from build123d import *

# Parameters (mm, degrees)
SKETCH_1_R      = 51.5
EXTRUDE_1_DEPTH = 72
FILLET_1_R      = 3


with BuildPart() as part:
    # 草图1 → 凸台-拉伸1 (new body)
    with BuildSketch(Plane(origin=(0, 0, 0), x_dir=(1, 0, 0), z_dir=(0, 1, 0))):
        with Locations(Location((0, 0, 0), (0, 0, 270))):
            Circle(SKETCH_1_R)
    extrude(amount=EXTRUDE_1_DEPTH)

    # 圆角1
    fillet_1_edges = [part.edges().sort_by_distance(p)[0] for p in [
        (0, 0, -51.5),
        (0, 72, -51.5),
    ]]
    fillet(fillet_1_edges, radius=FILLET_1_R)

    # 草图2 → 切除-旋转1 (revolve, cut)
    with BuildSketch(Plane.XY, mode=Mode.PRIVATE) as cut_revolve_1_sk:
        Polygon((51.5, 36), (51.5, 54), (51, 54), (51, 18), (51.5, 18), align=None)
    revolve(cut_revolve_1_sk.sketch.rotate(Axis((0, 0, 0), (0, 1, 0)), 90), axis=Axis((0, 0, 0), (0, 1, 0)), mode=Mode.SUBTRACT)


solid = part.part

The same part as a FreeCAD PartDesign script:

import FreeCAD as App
import Part
import Sketcher
from FreeCAD import Vector
Q = App.Units.Quantity


def edges_at(feature, points):
    """Names of the edges that pass closest to the given points."""
    edges = feature.Shape.Edges
    near = lambda p: min(range(len(edges)), key=lambda i: edges[i].distToShape(Part.Vertex(*p))[0])
    return sorted({f"Edge{near(p) + 1}" for p in points})

doc = App.newDocument("Part")
body = doc.addObject("PartDesign::Body", "Body")

sketch1 = body.newObject("Sketcher::SketchObject", "Sketch")
sketch1.AttachmentSupport = (doc.getObject("XZ_Plane"), [""])
sketch1.MapMode = "FlatFace"
sketch1.addGeometry(Part.Circle(Vector(0, 0, 0), Vector(0, 0, 1), 51.5), False)
sketch1.addConstraint(Sketcher.Constraint("Coincident", 0, 3, -1, 1))
sketch1.addConstraint(Sketcher.Constraint("Diameter", 0, Q("103 mm")))
pad1 = body.newObject("PartDesign::Pad", "Pad")
pad1.Profile = sketch1
pad1.Length = 72
pad1.Reversed = True
doc.recompute()

fillet = body.newObject("PartDesign::Fillet", "Fillet")
fillet.Base = (pad1, edges_at(pad1, [(0, 0, -51.5), (0, 72, -51.5)]))
fillet.Radius = 3

sketch2 = body.newObject("Sketcher::SketchObject", "Sketch001")
sketch2.AttachmentSupport = (doc.getObject("XY_Plane"), [""])
sketch2.MapMode = "FlatFace"
sketch2.addGeometry(Part.LineSegment(Vector(51.5, 54, 0), Vector(51, 54, 0)), False)
sketch2.addGeometry(Part.LineSegment(Vector(51, 54, 0), Vector(51, 18, 0)), False)
sketch2.addGeometry(Part.LineSegment(Vector(51, 18, 0), Vector(51.5, 18, 0)), False)
sketch2.addGeometry(Part.LineSegment(Vector(51.5, 18, 0), Vector(51.5, 54, 0)), False)
sketch2.addConstraint(Sketcher.Constraint("Coincident", 0, 2, 1, 1))
sketch2.addConstraint(Sketcher.Constraint("Coincident", 1, 2, 2, 1))
sketch2.addConstraint(Sketcher.Constraint("Coincident", 2, 2, 3, 1))
sketch2.addConstraint(Sketcher.Constraint("Coincident", 3, 2, 0, 1))
sketch2.addConstraint(Sketcher.Constraint("Horizontal", 0))
sketch2.addConstraint(Sketcher.Constraint("Vertical", 1))
sketch2.addConstraint(Sketcher.Constraint("Horizontal", 2))
sketch2.addConstraint(Sketcher.Constraint("Vertical", 3))
sketch2.addConstraint(Sketcher.Constraint("DistanceY", 1, 2, 1, 1, Q("36 mm")))
sketch2.addConstraint(Sketcher.Constraint("DistanceX", 0, 2, 0, 1, Q("0.5 mm")))
sketch2.addConstraint(Sketcher.Constraint("DistanceX", -1, 1, 0, 2, Q("51 mm")))
sketch2.addConstraint(Sketcher.Constraint("DistanceY", -1, 1, 0, 2, Q("54 mm")))
groove = body.newObject("PartDesign::Groove", "Groove")
groove.Profile = sketch2
groove.ReferenceAxis = (sketch2, ["V_Axis"])
groove.Angle = 360

doc.recompute()
